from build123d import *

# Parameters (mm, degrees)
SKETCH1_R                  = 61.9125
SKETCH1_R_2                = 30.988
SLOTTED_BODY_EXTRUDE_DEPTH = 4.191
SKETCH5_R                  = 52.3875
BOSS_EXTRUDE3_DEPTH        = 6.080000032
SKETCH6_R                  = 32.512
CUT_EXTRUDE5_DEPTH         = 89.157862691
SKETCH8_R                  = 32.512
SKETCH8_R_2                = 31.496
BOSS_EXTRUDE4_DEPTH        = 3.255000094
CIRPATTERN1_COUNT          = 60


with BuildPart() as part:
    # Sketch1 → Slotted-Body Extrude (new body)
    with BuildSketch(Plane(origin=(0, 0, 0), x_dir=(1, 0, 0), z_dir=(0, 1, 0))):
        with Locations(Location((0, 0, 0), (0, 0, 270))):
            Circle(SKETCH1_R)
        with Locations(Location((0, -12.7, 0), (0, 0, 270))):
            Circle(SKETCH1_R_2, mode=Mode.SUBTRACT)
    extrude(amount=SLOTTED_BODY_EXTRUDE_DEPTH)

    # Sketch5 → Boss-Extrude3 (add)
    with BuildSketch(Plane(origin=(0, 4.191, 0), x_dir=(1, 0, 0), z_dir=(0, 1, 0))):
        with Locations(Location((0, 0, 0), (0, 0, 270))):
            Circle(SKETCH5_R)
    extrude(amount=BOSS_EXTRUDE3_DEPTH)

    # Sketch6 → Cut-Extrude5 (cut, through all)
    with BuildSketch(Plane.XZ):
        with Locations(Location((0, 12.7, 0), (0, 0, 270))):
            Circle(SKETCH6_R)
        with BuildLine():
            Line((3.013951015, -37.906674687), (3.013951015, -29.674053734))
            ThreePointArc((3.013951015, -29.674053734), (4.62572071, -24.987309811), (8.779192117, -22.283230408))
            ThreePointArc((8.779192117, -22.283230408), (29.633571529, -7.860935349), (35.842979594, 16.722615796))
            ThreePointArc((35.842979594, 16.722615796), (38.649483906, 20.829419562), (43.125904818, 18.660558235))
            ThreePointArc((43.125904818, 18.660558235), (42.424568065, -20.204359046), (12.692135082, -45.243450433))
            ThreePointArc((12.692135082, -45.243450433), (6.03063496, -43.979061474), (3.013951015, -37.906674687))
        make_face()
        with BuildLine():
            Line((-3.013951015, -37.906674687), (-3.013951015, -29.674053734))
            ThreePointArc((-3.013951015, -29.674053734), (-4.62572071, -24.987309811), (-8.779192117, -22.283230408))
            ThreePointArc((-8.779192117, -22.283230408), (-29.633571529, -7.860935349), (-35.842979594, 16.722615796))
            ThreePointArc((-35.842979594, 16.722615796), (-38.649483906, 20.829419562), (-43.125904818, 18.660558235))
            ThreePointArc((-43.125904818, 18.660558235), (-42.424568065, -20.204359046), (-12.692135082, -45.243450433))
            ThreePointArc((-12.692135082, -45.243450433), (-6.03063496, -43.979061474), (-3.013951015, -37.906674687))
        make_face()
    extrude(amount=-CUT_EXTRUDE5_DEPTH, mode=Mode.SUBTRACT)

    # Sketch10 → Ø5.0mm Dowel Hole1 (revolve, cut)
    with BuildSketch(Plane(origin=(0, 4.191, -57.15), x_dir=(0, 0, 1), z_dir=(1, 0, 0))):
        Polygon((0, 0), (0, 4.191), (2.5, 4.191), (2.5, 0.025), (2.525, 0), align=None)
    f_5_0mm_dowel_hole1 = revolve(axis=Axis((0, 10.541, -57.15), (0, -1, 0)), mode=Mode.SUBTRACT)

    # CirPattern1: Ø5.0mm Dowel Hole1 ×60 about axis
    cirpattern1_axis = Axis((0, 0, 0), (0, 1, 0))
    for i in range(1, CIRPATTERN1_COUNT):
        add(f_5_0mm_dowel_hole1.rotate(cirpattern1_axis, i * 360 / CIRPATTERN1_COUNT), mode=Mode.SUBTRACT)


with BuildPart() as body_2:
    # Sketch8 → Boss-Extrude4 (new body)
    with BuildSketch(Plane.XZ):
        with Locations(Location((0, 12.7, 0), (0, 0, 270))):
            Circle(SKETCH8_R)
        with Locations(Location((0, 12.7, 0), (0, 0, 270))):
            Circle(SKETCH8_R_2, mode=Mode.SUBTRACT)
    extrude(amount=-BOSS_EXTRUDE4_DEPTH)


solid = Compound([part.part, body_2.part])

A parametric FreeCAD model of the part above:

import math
import FreeCAD as App
import Part
import Sketcher
Q = App.Units.Quantity

doc = App.newDocument("Part")
body = doc.addObject("PartDesign::Body", "Body")

sketch1 = body.newObject("Sketcher::SketchObject", "Sketch")
sketch1.AttachmentSupport = (doc.getObject("XZ_Plane"), [""])
sketch1.MapMode = "FlatFace"
sketch1.addGeometry([
    Part.Circle(App.Vector(0, 0, 0), App.Vector(0, 0, 1), 62),
    Part.Circle(App.Vector(0, 13, 0), App.Vector(0, 0, 1), 31),
], False)
sketch1.addConstraint([
    Sketcher.Constraint("Coincident", 0, 3, -1, 1),
    Sketcher.Constraint("PointOnObject", 1, 3, -2),
    Sketcher.Constraint("Diameter", 1, Q("2.44 in")),
    Sketcher.Constraint("Diameter", 0, Q("4.875 in")),
    Sketcher.Constraint("DistanceY", -1, 1, 1, 3, Q("0.5 in")),
])
pad1 = body.newObject("PartDesign::Pad", "Pad")
pad1.Profile = sketch1
pad1.Length = Q("0.165 in")
pad1.Reversed = True

sketch2 = body.newObject("Sketcher::SketchObject", "Sketch001")
sketch2.AttachmentSupport = (doc.getObject("XZ_Plane"), [""])
sketch2.MapMode = "FlatFace"
sketch2.AttachmentOffset = App.Placement(App.Vector(0, 0, -0.165 * 25.4), App.Rotation())
sketch2.addGeometry(Part.Circle(App.Vector(0, 0, 0), App.Vector(0, 0, 1), 52), False)
sketch2.addConstraint([
    Sketcher.Constraint("Coincident", 0, 3, -1, 1),
    Sketcher.Constraint("Diameter", 0, Q("4.125 in")),
])
pad2 = body.newObject("PartDesign::Pad", "Pad001")
pad2.Profile = sketch2
pad2.Length = 6.08
pad2.Reversed = True

sketch3 = body.newObject("Sketcher::SketchObject", "Sketch002")
sketch3.AttachmentSupport = (doc.getObject("XZ_Plane"), [""])
sketch3.MapMode = "FlatFace"
sketch3.addGeometry([
    Part.Circle(App.Vector(0, 12.7, 0), App.Vector(0, 0, 1), 32.5),
    Part.LineSegment(App.Vector(3, -29.7, 0), App.Vector(3, -37.9, 0)),
    Part.ArcOfCircle(Part.Circle(App.Vector(10.6, -37.9, 0), App.Vector(0, 0, 1), 7.6), math.radians(-180), math.radians(-74)),
    Part.ArcOfCircle(Part.Circle(App.Vector(0, 0, 0), App.Vector(0, 0, 1), 47), math.radians(-74), math.radians(23)),
    Part.ArcOfCircle(Part.Circle(App.Vector(39.6, 17.1, 0), App.Vector(0, 0, 1), 3.8), math.radians(23), math.radians(186)),
    Part.ArcOfCircle(Part.Circle(App.Vector(0, 12.7, 0), App.Vector(0, 0, 1), 36.1), math.radians(-76), math.radians(6)),
    Part.ArcOfCircle(Part.Circle(App.Vector(10.6, -29.7, 0), App.Vector(0, 0, 1), 7.6), math.radians(104), math.radians(180)),
    Part.LineSegment(App.Vector(-3, -37.9, 0), App.Vector(-3, -29.7, 0)),
    Part.ArcOfCircle(Part.Circle(App.Vector(-10.6, -29.7, 0), App.Vector(0, 0, 1), 7.6), math.radians(0), math.radians(76)),
    Part.ArcOfCircle(Part.Circle(App.Vector(0, 12.7, 0), App.Vector(0, 0, 1), 36.1), math.radians(174), math.radians(256)),
    Part.ArcOfCircle(Part.Circle(App.Vector(-39.6, 17.1, 0), App.Vector(0, 0, 1), 3.8), math.radians(-6), math.radians(157)),
    Part.ArcOfCircle(Part.Circle(App.Vector(0, 0, 0), App.Vector(0, 0, 1), 47), math.radians(157), math.radians(254)),
    Part.ArcOfCircle(Part.Circle(App.Vector(-10.6, -37.9, 0), App.Vector(0, 0, 1), 7.6), math.radians(-106), math.radians(0)),
], False)
sketch3.addConstraint([
    Sketcher.Constraint("Tangent", 1, 2, 2, 1),
    Sketcher.Constraint("Tangent", 2, 2, 3, 1),
    Sketcher.Constraint("Tangent", 3, 2, 4, 1),
    Sketcher.Constraint("Tangent", 4, 2, 5, 2),
    Sketcher.Constraint("Tangent", 5, 1, 6, 1),
    Sketcher.Constraint("Tangent", 6, 2, 1, 1),
    Sketcher.Constraint("Tangent", 7, 2, 8, 1),
    Sketcher.Constraint("Tangent", 8, 2, 9, 2),
    Sketcher.Constraint("Tangent", 9, 1, 10, 1),
    Sketcher.Constraint("Tangent", 10, 2, 11, 1),
    Sketcher.Constraint("Tangent", 11, 2, 12, 1),
    Sketcher.Constraint("Tangent", 12, 2, 7, 1),
    Sketcher.Constraint("Vertical", 1),
    Sketcher.Constraint("Vertical", 7),
    Sketcher.Constraint("Coincident", 3, 3, -1, 1),
    Sketcher.Constraint("Coincident", 11, 3, -1, 1),
    Sketcher.Constraint("Coincident", 5, 3, 0, 3),
    Sketcher.Constraint("Coincident", 9, 3, 0, 3),
    Sketcher.Constraint("Equal", 2, 6),
    Sketcher.Constraint("Equal", 6, 8),
    Sketcher.Constraint("Equal", 5, 9),
    Sketcher.Constraint("Equal", 4, 10),
    Sketcher.Constraint("Equal", 3, 11),
    Sketcher.Constraint("Equal", 8, 12),
    Sketcher.Constraint("Symmetric", 6, 3, 8, 3, -2),
    Sketcher.Constraint("Radius", 2, Q("0.3 in")),
    Sketcher.Constraint("Diameter", 0, Q("2.56 in")),
    Sketcher.Constraint("Radius", 3, Q("1.85 in")),
    Sketcher.Constraint("Radius", 4, Q("0.15 in")),
    Sketcher.Constraint("Radius", 5, Q("1.42 in")),
    Sketcher.Constraint("DistanceY", -1, 1, 0, 3, Q("0.5 in")),
    Sketcher.Constraint("DistanceY", 1, 2, 1, 1, 8.232621),
])
pocket1 = body.newObject("PartDesign::Pocket", "Pocket")
pocket1.Profile = sketch3
pocket1.Type = "ThroughAll"

sketch4 = body.newObject("Sketcher::SketchObject", "Sketch003")
sketch4.AttachmentSupport = (doc.getObject("YZ_Plane"), [""])
sketch4.MapMode = "FlatFace"
sketch4.addGeometry([
    Part.LineSegment(App.Vector(0, -57.15, 0), App.Vector(4.191, -57.15, 0)),
    Part.LineSegment(App.Vector(4.191, -57.15, 0), App.Vector(4.191, -54.625, 0)),
    Part.LineSegment(App.Vector(4.191, -54.625, 0), App.Vector(4.166, -54.65, 0)),
    Part.LineSegment(App.Vector(4.166, -54.65, 0), App.Vector(0, -54.65, 0)),
    Part.LineSegment(App.Vector(0, -54.65, 0), App.Vector(0, -57.15, 0)),
], False)
sketch4.addGeometry(Part.LineSegment(App.Vector(4.191, -57.15, 0), App.Vector(0, -57.15, 0)), True)
sketch4.addConstraint([
    Sketcher.Constraint("Coincident", 0, 2, 1, 1),
    Sketcher.Constraint("Coincident", 1, 2, 2, 1),
    Sketcher.Constraint("Coincident", 2, 2, 3, 1),
    Sketcher.Constraint("Coincident", 3, 2, 4, 1),
    Sketcher.Constraint("Coincident", 4, 2, 0, 1),
    Sketcher.Constraint("Horizontal", 0),
    Sketcher.Constraint("Vertical", 1),
    Sketcher.Constraint("Horizontal", 3),
    Sketcher.Constraint("Vertical", 4),
    Sketcher.Constraint("Horizontal", 5),
    Sketcher.Constraint("Coincident", 5, 1, 0, 2),
    Sketcher.Constraint("PointOnObject", 3, 2, -2),
    Sketcher.Constraint("PointOnObject", 5, 2, -2),
    Sketcher.Constraint("Angle", 2, Q("-135 deg")),
    Sketcher.Constraint("DistanceX", 0, 1, 0, 2, Q("0.165 in")),
    Sketcher.Constraint("DistanceY", 0, 2, -1, 1, Q("2.25 in")),
    Sketcher.Constraint("DistanceX", 3, 2, 3, 1, 4.166),
    Sketcher.Constraint("DistanceY", 1, 1, 1, 2, 2.525),
])
groove = body.newObject("PartDesign::Groove", "Groove")
groove.Profile = sketch4
groove.ReferenceAxis = (sketch4, ["Axis0"])
groove.Angle = 360
doc.recompute()

polarpattern = body.newObject("PartDesign::PolarPattern", "PolarPattern")
polarpattern.Originals = [groove]
polarpattern.Axis = (doc.getObject("Y_Axis"), [""])
polarpattern.Angle = 360
polarpattern.Occurrences = 60
body.Tip = polarpattern
body2 = doc.addObject("PartDesign::Body", "Body001")

sketch5 = body2.newObject("Sketcher::SketchObject", "Sketch004")
sketch5.AttachmentSupport = (doc.getObject("XZ_Plane001"), [""])
sketch5.MapMode = "FlatFace"
sketch5.addGeometry([
    Part.Circle(App.Vector(0, 13, 0), App.Vector(0, 0, 1), 33),
    Part.Circle(App.Vector(0, 13, 0), App.Vector(0, 0, 1), 31),
], False)
sketch5.addConstraint([
    Sketcher.Constraint("Coincident", 1, 3, 0, 3),
    Sketcher.Constraint("PointOnObject", 0, 3, -2),
    Sketcher.Constraint("Diameter", 0, Q("2.56 in")),
    Sketcher.Constraint("Diameter", 1, Q("2.48 in")),
    Sketcher.Constraint("DistanceY", -1, 1, 0, 3, Q("0.5 in")),
])
pad3 = body2.newObject("PartDesign::Pad", "Pad002")
pad3.Profile = sketch5
pad3.Length = 3.255
pad3.Reversed = True

doc.recompute()
